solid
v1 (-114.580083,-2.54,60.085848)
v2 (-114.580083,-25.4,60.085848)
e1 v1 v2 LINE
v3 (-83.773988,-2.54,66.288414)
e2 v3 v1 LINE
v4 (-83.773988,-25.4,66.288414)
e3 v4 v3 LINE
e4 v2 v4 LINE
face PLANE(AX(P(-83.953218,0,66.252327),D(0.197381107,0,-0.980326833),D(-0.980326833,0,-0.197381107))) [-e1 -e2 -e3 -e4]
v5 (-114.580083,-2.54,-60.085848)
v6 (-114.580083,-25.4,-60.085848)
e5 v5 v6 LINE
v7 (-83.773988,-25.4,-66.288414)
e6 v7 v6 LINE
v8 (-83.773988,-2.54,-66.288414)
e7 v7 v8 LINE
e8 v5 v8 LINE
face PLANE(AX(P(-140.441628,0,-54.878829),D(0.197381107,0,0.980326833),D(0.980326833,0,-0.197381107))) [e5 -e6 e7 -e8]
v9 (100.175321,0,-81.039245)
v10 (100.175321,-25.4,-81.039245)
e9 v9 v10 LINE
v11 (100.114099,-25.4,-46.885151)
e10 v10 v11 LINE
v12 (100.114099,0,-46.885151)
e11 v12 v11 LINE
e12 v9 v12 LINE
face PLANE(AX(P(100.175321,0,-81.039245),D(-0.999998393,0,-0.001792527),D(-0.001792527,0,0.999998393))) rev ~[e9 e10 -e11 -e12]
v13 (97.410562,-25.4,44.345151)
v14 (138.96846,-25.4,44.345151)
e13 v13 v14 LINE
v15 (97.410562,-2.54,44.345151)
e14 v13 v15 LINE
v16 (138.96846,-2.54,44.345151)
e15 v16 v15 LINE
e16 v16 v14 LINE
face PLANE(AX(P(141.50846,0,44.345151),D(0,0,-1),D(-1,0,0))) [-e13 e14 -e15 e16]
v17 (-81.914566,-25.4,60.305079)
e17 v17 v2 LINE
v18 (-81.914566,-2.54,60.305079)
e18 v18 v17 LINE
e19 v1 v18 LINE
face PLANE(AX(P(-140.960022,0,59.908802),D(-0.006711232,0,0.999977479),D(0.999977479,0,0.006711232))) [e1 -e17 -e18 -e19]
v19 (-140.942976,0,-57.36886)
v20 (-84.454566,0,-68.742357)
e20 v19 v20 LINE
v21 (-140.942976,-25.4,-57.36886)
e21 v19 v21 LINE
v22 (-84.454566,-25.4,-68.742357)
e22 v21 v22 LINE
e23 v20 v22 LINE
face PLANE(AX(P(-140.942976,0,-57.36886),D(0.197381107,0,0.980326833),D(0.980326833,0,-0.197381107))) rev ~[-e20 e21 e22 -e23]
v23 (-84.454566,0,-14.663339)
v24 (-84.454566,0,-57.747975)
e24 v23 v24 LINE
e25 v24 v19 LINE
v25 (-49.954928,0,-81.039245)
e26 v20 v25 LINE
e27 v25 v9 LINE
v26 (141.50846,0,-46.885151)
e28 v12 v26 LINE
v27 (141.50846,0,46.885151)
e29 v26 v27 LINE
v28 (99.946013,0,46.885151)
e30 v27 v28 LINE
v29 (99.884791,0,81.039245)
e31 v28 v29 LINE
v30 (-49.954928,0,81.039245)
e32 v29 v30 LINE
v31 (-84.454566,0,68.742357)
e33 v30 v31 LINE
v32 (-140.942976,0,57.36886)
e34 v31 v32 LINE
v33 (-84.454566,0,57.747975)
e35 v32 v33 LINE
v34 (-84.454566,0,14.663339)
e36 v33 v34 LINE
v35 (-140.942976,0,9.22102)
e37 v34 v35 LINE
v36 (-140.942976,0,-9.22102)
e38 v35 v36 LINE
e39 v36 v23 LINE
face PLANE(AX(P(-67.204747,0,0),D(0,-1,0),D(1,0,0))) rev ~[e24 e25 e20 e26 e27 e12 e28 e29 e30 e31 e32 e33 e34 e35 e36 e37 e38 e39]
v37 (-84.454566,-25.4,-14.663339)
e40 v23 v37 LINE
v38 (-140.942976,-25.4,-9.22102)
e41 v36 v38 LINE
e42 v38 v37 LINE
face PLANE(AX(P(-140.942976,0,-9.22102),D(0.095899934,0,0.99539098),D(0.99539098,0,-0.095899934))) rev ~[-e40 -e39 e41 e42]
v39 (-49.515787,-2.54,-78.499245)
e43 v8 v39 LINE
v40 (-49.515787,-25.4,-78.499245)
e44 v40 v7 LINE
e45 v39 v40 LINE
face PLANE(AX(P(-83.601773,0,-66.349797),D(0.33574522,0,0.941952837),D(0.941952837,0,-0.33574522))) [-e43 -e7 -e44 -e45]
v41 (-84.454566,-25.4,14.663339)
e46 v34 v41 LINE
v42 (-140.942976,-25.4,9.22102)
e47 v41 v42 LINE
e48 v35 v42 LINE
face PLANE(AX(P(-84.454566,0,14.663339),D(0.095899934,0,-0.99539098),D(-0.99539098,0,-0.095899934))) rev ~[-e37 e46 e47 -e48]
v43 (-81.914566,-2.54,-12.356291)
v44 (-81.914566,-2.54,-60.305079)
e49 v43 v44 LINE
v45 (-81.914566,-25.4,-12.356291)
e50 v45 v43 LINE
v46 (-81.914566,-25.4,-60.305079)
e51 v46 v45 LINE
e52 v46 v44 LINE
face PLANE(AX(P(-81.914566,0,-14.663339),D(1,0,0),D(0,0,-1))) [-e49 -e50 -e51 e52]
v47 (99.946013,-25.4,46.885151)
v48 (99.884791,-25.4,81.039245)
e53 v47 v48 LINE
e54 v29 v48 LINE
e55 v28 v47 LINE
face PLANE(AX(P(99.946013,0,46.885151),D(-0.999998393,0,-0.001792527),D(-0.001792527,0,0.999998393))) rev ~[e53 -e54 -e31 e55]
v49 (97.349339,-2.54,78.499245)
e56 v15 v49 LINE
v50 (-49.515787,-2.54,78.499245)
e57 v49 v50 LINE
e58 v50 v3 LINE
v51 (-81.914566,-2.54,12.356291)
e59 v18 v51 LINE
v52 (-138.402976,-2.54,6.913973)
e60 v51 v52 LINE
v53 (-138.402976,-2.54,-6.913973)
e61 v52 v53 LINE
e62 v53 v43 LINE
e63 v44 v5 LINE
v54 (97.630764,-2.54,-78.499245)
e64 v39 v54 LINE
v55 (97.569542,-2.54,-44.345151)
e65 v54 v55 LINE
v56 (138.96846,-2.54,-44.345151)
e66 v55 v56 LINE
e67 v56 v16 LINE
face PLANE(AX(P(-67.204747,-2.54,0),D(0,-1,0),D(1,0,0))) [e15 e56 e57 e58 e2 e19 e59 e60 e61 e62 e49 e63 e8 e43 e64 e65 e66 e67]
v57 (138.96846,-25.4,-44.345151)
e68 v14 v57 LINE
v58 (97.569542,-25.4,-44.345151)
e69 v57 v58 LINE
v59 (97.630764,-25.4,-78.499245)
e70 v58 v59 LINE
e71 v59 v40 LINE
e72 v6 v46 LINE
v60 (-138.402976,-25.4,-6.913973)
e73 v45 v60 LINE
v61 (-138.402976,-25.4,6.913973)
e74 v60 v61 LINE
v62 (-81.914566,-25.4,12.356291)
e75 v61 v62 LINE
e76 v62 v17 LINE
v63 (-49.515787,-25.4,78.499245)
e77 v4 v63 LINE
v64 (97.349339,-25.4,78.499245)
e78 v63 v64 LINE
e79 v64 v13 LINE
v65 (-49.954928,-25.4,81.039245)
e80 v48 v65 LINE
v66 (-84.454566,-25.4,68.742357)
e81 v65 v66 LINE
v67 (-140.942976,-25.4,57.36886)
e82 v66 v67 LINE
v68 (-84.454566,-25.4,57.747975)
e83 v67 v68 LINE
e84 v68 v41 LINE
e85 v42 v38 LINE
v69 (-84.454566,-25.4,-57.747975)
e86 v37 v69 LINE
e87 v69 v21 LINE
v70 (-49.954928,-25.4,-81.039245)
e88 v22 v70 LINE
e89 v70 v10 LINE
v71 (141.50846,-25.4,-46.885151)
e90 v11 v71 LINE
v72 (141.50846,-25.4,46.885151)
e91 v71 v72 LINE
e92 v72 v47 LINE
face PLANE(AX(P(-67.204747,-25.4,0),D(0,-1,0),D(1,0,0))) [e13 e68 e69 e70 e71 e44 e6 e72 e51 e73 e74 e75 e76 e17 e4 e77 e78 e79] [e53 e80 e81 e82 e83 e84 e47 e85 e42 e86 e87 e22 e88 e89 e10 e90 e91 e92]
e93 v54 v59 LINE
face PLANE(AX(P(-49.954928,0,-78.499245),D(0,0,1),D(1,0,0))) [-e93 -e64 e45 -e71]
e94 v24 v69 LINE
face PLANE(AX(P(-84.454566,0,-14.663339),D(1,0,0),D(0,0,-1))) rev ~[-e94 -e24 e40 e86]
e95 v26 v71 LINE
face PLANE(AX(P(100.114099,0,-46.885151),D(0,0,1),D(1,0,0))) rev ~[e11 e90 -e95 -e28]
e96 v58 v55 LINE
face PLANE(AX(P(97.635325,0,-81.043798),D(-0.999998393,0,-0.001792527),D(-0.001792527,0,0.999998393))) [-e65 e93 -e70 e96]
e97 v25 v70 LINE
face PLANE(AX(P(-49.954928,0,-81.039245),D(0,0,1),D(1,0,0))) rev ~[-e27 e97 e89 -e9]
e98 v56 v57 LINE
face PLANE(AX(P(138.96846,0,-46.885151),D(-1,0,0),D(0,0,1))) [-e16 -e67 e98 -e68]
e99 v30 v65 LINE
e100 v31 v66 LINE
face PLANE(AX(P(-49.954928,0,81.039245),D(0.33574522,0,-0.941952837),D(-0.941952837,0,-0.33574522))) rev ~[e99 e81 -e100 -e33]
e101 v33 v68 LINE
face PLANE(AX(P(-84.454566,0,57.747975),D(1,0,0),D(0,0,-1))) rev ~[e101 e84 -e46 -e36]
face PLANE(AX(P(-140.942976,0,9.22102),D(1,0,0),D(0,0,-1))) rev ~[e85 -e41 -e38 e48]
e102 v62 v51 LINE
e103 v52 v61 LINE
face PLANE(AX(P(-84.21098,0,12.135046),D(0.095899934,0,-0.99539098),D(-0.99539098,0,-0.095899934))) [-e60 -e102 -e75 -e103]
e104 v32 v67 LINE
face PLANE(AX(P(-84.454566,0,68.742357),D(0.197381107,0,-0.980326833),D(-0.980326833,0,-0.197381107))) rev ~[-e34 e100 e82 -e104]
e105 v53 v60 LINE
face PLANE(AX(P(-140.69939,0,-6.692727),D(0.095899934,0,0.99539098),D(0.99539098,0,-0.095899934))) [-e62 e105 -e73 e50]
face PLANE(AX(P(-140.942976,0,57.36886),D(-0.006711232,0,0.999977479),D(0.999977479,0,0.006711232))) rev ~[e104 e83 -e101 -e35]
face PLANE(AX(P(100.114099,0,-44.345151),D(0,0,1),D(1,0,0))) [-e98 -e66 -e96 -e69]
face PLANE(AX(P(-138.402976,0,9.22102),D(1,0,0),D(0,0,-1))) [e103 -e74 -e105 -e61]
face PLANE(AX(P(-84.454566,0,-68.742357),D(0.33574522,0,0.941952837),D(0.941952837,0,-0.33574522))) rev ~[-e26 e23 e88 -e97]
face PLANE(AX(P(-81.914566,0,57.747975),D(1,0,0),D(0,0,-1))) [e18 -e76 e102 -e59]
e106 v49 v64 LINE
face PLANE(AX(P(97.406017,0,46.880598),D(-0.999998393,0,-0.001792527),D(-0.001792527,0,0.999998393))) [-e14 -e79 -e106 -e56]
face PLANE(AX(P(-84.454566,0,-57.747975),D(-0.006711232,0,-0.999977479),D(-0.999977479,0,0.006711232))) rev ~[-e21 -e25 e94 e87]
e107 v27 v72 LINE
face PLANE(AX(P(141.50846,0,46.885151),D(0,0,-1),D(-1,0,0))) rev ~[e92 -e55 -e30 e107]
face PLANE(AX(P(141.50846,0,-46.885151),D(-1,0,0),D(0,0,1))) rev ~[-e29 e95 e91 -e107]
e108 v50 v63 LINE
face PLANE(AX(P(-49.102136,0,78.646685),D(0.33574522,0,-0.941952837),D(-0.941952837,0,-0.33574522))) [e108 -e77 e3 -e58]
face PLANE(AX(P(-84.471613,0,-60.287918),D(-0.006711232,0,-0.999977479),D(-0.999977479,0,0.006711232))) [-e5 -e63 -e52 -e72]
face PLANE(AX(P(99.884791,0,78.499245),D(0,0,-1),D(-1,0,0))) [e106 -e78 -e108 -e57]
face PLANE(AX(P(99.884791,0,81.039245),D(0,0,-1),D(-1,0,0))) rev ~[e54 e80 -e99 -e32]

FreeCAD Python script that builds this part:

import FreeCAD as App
import Part
import Sketcher
Q = App.Units.Quantity


def faces_at(feature, points):
    """Names of the faces that lie closest to the given points."""
    faces = feature.Shape.Faces
    near = lambda p: min(range(len(faces)), key=lambda i: faces[i].distToShape(Part.Vertex(*p))[0])
    return sorted({f"Face{near(p) + 1}" for p in points})


def add_polygon(sketch, points):
    """Adds a closed chain of lines whose ends are joined by coincident constraints."""
    first, n = sketch.GeometryCount, len(points)
    for a, b in zip(points, points[1:] + points[:1]):
        sketch.addGeometry(Part.LineSegment(App.Vector(*a, 0), App.Vector(*b, 0)), False)
    for i in range(n):
        sketch.addConstraint(Sketcher.Constraint("Coincident", first + i, 2, first + (i + 1) % n, 1))

doc = App.newDocument("Part")
body = doc.addObject("PartDesign::Body", "Body")

# Sketch on XZ plane
sketch1 = body.newObject("Sketcher::SketchObject", "Sketch")
sketch1.AttachmentSupport = (doc.getObject("XZ_Plane"), [""])
sketch1.MapMode = "FlatFace"
add_polygon(sketch1, [(-84.454566, 57.747975), (-84.454566, 14.663339), (-140.942976, 9.22102), (-140.942976, -9.22102), (-84.454566, -14.663339), (-84.454566, -57.747975), (-140.942976, -57.36886), (-84.454566, -68.742357), (-49.954928, -81.039245), (100.175321, -81.039245), (100.114099, -46.885151), (141.50846, -46.885151), (141.50846, 46.885151), (99.946013, 46.885151), (99.884791, 81.039245), (-49.954928, 81.039245), (-84.454566, 68.742357), (-140.942976, 57.36886)])  # lines 0-17
sketch1.addConstraint(Sketcher.Constraint("Vertical", 0))
sketch1.addConstraint(Sketcher.Constraint("Vertical", 2))
sketch1.addConstraint(Sketcher.Constraint("Vertical", 4))
sketch1.addConstraint(Sketcher.Constraint("Horizontal", 8))
sketch1.addConstraint(Sketcher.Constraint("Horizontal", 10))
sketch1.addConstraint(Sketcher.Constraint("Vertical", 11))
sketch1.addConstraint(Sketcher.Constraint("Horizontal", 12))
sketch1.addConstraint(Sketcher.Constraint("Horizontal", 14))
sketch1.addConstraint(Sketcher.Constraint("Symmetric", 0, 2, 3, 2, -1))
sketch1.addConstraint(Sketcher.Constraint("Symmetric", 7, 2, 14, 2, -1))
sketch1.addConstraint(Sketcher.Constraint("Symmetric", 6, 2, 15, 2, -1))
sketch1.addConstraint(Sketcher.Constraint("Symmetric", 5, 2, 16, 2, -1))
sketch1.addConstraint(Sketcher.Constraint("Parallel", 9, 13))
sketch1.addConstraint(Sketcher.Constraint("Vertical", 2, 2, 5, 2))
sketch1.addConstraint(Sketcher.Constraint("Vertical", 4, 2, 6, 2))
sketch1.addConstraint(Sketcher.Constraint("Equal", 0, 4))
sketch1.addConstraint(Sketcher.Constraint("Equal", 1, 3))
sketch1.addConstraint(Sketcher.Constraint("Equal", 9, 13))
sketch1.addConstraint(Sketcher.Constraint("DistanceX", -1, 1, 9, 2, Q("3.9415 in")))
sketch1.addConstraint(Sketcher.Constraint("DistanceX", 8, 1, 8, 2, Q("150.13025 mm")))
sketch1.addConstraint(Sketcher.Constraint("DistanceX", 10, 1, 10, 2, Q("41.394361 mm")))
sketch1.addConstraint(Sketcher.Constraint("DistanceX", 14, 2, 14, 1, Q("149.839719 mm")))
sketch1.addConstraint(Sketcher.Constraint("DistanceY", 2, 2, 2, 1, Q("18.44204 mm")))
sketch1.addConstraint(Sketcher.Constraint("DistanceY", 5, 2, 0, 2, Q("72.032198 mm")))
sketch1.addConstraint(Sketcher.Constraint("Distance", 1, Q("56.749971 mm")))
sketch1.addConstraint(Sketcher.Constraint("Distance", 5, Q("56.489682 mm")))
sketch1.addConstraint(Sketcher.Constraint("Distance", 9, Q("34.154149 mm")))
sketch1.addConstraint(Sketcher.Constraint("DistanceX", 12, 2, 12, 1, Q("41.562447 mm")))
sketch1.addConstraint(Sketcher.Constraint("DistanceY", 0, 2, 0, 1, Q("43.084636 mm")))
sketch1.addConstraint(Sketcher.Constraint("DistanceY", 11, 1, 11, 2, Q("93.770303 mm")))
sketch1.addConstraint(Sketcher.Constraint("DistanceY", 6, 2, 3, 2, Q("54.079019 mm")))
sketch1.addConstraint(Sketcher.Constraint("DistanceX", 0, 2, 12, 2, Q("184.400579 mm")))
pad1 = body.newObject("PartDesign::Pad", "Pad")
pad1.Profile = sketch1
pad1.Length = Q("1 in")
doc.recompute()

thickness = body.newObject("PartDesign::Thickness", "Thickness")
thickness.Base = (pad1, faces_at(pad1, [(0.283, -25.4, 0)]))
thickness.Value = Q("0.1 in")
thickness.Reversed = True
thickness.Join = "Intersection"

doc.recompute()
